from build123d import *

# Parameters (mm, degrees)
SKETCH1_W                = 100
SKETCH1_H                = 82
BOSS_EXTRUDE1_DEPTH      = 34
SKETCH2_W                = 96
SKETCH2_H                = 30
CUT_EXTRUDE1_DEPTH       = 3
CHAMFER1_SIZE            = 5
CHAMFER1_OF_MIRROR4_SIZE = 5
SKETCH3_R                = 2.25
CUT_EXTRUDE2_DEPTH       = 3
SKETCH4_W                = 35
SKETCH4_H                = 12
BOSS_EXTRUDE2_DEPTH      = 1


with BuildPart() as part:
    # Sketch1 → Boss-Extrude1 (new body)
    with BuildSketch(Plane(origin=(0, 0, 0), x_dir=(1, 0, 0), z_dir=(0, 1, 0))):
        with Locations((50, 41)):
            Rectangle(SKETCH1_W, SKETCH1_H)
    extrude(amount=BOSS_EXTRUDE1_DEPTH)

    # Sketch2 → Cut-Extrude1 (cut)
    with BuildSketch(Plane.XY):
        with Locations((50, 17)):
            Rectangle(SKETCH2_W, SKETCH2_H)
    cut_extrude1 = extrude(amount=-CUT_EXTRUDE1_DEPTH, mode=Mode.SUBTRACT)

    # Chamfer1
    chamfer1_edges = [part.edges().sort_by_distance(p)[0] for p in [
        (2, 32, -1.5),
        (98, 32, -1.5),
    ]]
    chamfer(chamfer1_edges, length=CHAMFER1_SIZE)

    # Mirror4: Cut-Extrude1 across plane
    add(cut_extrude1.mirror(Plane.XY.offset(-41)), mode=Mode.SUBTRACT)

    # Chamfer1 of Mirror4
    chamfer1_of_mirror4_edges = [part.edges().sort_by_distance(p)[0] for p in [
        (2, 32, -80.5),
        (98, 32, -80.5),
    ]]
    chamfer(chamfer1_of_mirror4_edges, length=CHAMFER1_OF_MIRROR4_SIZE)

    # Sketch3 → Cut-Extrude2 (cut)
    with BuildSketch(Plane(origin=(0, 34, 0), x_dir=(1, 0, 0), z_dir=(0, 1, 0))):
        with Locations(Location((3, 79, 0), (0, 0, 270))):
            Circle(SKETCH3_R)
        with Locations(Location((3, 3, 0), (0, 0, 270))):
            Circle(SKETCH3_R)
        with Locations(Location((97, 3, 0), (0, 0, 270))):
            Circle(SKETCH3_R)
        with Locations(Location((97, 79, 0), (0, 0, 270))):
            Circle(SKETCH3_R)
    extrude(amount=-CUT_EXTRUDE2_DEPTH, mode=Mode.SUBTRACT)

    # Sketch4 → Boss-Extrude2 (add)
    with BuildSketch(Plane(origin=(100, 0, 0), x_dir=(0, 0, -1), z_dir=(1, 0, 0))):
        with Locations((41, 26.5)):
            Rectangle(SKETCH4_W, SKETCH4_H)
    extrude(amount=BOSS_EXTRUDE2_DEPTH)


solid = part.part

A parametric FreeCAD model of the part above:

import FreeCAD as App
import Part
import Sketcher
from FreeCAD import Vector


def edges_at(feature, points):
    """Names of the edges that pass closest to the given points."""
    edges = feature.Shape.Edges
    near = lambda p: min(range(len(edges)), key=lambda i: edges[i].distToShape(Part.Vertex(*p))[0])
    return sorted({f"Edge{near(p) + 1}" for p in points})


def add_polygon(sketch, points):
    """Adds a closed chain of lines whose ends are joined by coincident constraints."""
    first, n = sketch.GeometryCount, len(points)
    for a, b in zip(points, points[1:] + points[:1]):
        sketch.addGeometry(Part.LineSegment(App.Vector(*a, 0), App.Vector(*b, 0)), False)
    for i in range(n):
        sketch.addConstraint(Sketcher.Constraint("Coincident", first + i, 2, first + (i + 1) % n, 1))

doc = App.newDocument("Part")
body = doc.addObject("PartDesign::Body", "Body")

sketch1 = doc.addObject("Sketcher::SketchObject", "Sketch")
body.addObject(sketch1)
sketch1.AttachmentSupport = (doc.XZ_Plane, [""])
sketch1.MapMode = "FlatFace"
add_polygon(sketch1, [(0, -82), (0, 0), (100, 0), (100, -82)])
sketch1.addConstraint(Sketcher.Constraint("Vertical", 0))
sketch1.addConstraint(Sketcher.Constraint("Horizontal", 1))
sketch1.addConstraint(Sketcher.Constraint("Vertical", 2))
sketch1.addConstraint(Sketcher.Constraint("Horizontal", 3))
sketch1.addConstraint(Sketcher.Constraint("Coincident", 0, 2, -1, 1))
sketch1.addConstraint(Sketcher.Constraint("DistanceX", 1, 1, 1, 2, 100.0))
sketch1.addConstraint(Sketcher.Constraint("DistanceY", 0, 1, 0, 2, 82.0))
pad1 = doc.addObject("PartDesign::Pad", "Pad")
body.addObject(pad1)
pad1.Profile = sketch1
pad1.Length = 34
pad1.Reversed = True

sketch2 = doc.addObject("Sketcher::SketchObject", "Sketch001")
body.addObject(sketch2)
sketch2.AttachmentSupport = (doc.XY_Plane, [""])
sketch2.MapMode = "FlatFace"
add_polygon(sketch2, [(2, 32), (2, 2), (98, 2), (98, 32)])
sketch2.addConstraint(Sketcher.Constraint("Vertical", 0))
sketch2.addConstraint(Sketcher.Constraint("Horizontal", 1))
sketch2.addConstraint(Sketcher.Constraint("Vertical", 2))
sketch2.addConstraint(Sketcher.Constraint("Horizontal", 3))
sketch2.addConstraint(Sketcher.Constraint("DistanceX", 1, 1, 1, 2, 96.0))
sketch2.addConstraint(Sketcher.Constraint("DistanceY", 0, 2, 0, 1, 30.0))
sketch2.addConstraint(Sketcher.Constraint("DistanceX", -1, 1, 0, 2, 2.0))
sketch2.addConstraint(Sketcher.Constraint("DistanceY", -1, 1, 0, 2, 2.0))
pocket1 = doc.addObject("PartDesign::Pocket", "Pocket")
body.addObject(pocket1)
pocket1.Profile = sketch2
pocket1.Length = 3
doc.recompute()

chamfer = doc.addObject("PartDesign::Chamfer", "Chamfer")
body.addObject(chamfer)
chamfer.Base = (pocket1, edges_at(pocket1, [(2, 32, -1.5), (98, 32, -1.5)]))
chamfer.Size = 5
doc.recompute()

datumplane = doc.addObject("PartDesign::Plane", "DatumPlane")
body.addObject(datumplane)
datumplane.AttachmentSupport = (doc.XY_Plane, [""])
datumplane.MapMode = "FlatFace"
datumplane.AttachmentOffset = App.Placement(Vector(0, 0, -41), App.Rotation())
mirrored = doc.addObject("PartDesign::Mirrored", "Mirrored")
body.addObject(mirrored)
mirrored.Originals = [pocket1]
mirrored.MirrorPlane = (datumplane, [""])
body.Tip = mirrored
doc.recompute()

chamfer2 = doc.addObject("PartDesign::Chamfer", "Chamfer001")
body.addObject(chamfer2)
chamfer2.Base = (mirrored, edges_at(mirrored, [(2, 32, -80.5), (98, 32, -80.5)]))
chamfer2.Size = 5

sketch3 = doc.addObject("Sketcher::SketchObject", "Sketch002")
body.addObject(sketch3)
sketch3.AttachmentSupport = (doc.XZ_Plane, [""])
sketch3.MapMode = "FlatFace"
sketch3.AttachmentOffset = App.Placement(Vector(0, 0, -34), App.Rotation())
sketch3.addGeometry(Part.Circle(Vector(3, -79, 0), Vector(0, 0, 1), 2.25), False)
sketch3.addGeometry(Part.Circle(Vector(3, -3, 0), Vector(0, 0, 1), 2.25), False)
sketch3.addGeometry(Part.Circle(Vector(97, -3, 0), Vector(0, 0, 1), 2.25), False)
sketch3.addGeometry(Part.Circle(Vector(97, -79, 0), Vector(0, 0, 1), 2.25), False)
sketch3.addConstraint(Sketcher.Constraint("Equal", 0, 1))
sketch3.addConstraint(Sketcher.Constraint("Equal", 1, 2))
sketch3.addConstraint(Sketcher.Constraint("Equal", 2, 3))
sketch3.addConstraint(Sketcher.Constraint("Horizontal", 1, 3, 2, 3))
sketch3.addConstraint(Sketcher.Constraint("Horizontal", 0, 3, 3, 3))
sketch3.addConstraint(Sketcher.Constraint("Vertical", 0, 3, 1, 3))
sketch3.addConstraint(Sketcher.Constraint("Vertical", 2, 3, 3, 3))
sketch3.addConstraint(Sketcher.Constraint("Diameter", 0, 4.5))
sketch3.addConstraint(Sketcher.Constraint("DistanceX", -1, 1, 0, 3, 3.0))
sketch3.addConstraint(Sketcher.Constraint("DistanceY", 0, 3, -1, 1, 79.0))
sketch3.addConstraint(Sketcher.Constraint("DistanceY", 1, 3, -1, 1, 3.0))
sketch3.addConstraint(Sketcher.Constraint("DistanceX", -1, 1, 2, 3, 97.0))
pocket2 = doc.addObject("PartDesign::Pocket", "Pocket001")
body.addObject(pocket2)
pocket2.Profile = sketch3
pocket2.Length = 3
pocket2.Reversed = True

sketch4 = doc.addObject("Sketcher::SketchObject", "Sketch003")
body.addObject(sketch4)
sketch4.AttachmentSupport = (doc.YZ_Plane, [""])
sketch4.MapMode = "FlatFace"
sketch4.AttachmentOffset = App.Placement(Vector(0, 0, 100), App.Rotation())
add_polygon(sketch4, [(32.5, -23.5), (20.5, -23.5), (20.5, -58.5), (32.5, -58.5)])
sketch4.addConstraint(Sketcher.Constraint("Horizontal", 0))
sketch4.addConstraint(Sketcher.Constraint("Vertical", 1))
sketch4.addConstraint(Sketcher.Constraint("Horizontal", 2))
sketch4.addConstraint(Sketcher.Constraint("Vertical", 3))
sketch4.addConstraint(Sketcher.Constraint("DistanceX", 0, 2, 0, 1, 12.0))
sketch4.addConstraint(Sketcher.Constraint("DistanceY", 1, 2, 1, 1, 35.0))
sketch4.addConstraint(Sketcher.Constraint("DistanceX", -1, 1, 0, 2, 20.5))
sketch4.addConstraint(Sketcher.Constraint("DistanceY", 0, 2, -1, 1, 23.5))
pad2 = doc.addObject("PartDesign::Pad", "Pad001")
body.addObject(pad2)
pad2.Profile = sketch4
pad2.Length = 1

doc.recompute()
